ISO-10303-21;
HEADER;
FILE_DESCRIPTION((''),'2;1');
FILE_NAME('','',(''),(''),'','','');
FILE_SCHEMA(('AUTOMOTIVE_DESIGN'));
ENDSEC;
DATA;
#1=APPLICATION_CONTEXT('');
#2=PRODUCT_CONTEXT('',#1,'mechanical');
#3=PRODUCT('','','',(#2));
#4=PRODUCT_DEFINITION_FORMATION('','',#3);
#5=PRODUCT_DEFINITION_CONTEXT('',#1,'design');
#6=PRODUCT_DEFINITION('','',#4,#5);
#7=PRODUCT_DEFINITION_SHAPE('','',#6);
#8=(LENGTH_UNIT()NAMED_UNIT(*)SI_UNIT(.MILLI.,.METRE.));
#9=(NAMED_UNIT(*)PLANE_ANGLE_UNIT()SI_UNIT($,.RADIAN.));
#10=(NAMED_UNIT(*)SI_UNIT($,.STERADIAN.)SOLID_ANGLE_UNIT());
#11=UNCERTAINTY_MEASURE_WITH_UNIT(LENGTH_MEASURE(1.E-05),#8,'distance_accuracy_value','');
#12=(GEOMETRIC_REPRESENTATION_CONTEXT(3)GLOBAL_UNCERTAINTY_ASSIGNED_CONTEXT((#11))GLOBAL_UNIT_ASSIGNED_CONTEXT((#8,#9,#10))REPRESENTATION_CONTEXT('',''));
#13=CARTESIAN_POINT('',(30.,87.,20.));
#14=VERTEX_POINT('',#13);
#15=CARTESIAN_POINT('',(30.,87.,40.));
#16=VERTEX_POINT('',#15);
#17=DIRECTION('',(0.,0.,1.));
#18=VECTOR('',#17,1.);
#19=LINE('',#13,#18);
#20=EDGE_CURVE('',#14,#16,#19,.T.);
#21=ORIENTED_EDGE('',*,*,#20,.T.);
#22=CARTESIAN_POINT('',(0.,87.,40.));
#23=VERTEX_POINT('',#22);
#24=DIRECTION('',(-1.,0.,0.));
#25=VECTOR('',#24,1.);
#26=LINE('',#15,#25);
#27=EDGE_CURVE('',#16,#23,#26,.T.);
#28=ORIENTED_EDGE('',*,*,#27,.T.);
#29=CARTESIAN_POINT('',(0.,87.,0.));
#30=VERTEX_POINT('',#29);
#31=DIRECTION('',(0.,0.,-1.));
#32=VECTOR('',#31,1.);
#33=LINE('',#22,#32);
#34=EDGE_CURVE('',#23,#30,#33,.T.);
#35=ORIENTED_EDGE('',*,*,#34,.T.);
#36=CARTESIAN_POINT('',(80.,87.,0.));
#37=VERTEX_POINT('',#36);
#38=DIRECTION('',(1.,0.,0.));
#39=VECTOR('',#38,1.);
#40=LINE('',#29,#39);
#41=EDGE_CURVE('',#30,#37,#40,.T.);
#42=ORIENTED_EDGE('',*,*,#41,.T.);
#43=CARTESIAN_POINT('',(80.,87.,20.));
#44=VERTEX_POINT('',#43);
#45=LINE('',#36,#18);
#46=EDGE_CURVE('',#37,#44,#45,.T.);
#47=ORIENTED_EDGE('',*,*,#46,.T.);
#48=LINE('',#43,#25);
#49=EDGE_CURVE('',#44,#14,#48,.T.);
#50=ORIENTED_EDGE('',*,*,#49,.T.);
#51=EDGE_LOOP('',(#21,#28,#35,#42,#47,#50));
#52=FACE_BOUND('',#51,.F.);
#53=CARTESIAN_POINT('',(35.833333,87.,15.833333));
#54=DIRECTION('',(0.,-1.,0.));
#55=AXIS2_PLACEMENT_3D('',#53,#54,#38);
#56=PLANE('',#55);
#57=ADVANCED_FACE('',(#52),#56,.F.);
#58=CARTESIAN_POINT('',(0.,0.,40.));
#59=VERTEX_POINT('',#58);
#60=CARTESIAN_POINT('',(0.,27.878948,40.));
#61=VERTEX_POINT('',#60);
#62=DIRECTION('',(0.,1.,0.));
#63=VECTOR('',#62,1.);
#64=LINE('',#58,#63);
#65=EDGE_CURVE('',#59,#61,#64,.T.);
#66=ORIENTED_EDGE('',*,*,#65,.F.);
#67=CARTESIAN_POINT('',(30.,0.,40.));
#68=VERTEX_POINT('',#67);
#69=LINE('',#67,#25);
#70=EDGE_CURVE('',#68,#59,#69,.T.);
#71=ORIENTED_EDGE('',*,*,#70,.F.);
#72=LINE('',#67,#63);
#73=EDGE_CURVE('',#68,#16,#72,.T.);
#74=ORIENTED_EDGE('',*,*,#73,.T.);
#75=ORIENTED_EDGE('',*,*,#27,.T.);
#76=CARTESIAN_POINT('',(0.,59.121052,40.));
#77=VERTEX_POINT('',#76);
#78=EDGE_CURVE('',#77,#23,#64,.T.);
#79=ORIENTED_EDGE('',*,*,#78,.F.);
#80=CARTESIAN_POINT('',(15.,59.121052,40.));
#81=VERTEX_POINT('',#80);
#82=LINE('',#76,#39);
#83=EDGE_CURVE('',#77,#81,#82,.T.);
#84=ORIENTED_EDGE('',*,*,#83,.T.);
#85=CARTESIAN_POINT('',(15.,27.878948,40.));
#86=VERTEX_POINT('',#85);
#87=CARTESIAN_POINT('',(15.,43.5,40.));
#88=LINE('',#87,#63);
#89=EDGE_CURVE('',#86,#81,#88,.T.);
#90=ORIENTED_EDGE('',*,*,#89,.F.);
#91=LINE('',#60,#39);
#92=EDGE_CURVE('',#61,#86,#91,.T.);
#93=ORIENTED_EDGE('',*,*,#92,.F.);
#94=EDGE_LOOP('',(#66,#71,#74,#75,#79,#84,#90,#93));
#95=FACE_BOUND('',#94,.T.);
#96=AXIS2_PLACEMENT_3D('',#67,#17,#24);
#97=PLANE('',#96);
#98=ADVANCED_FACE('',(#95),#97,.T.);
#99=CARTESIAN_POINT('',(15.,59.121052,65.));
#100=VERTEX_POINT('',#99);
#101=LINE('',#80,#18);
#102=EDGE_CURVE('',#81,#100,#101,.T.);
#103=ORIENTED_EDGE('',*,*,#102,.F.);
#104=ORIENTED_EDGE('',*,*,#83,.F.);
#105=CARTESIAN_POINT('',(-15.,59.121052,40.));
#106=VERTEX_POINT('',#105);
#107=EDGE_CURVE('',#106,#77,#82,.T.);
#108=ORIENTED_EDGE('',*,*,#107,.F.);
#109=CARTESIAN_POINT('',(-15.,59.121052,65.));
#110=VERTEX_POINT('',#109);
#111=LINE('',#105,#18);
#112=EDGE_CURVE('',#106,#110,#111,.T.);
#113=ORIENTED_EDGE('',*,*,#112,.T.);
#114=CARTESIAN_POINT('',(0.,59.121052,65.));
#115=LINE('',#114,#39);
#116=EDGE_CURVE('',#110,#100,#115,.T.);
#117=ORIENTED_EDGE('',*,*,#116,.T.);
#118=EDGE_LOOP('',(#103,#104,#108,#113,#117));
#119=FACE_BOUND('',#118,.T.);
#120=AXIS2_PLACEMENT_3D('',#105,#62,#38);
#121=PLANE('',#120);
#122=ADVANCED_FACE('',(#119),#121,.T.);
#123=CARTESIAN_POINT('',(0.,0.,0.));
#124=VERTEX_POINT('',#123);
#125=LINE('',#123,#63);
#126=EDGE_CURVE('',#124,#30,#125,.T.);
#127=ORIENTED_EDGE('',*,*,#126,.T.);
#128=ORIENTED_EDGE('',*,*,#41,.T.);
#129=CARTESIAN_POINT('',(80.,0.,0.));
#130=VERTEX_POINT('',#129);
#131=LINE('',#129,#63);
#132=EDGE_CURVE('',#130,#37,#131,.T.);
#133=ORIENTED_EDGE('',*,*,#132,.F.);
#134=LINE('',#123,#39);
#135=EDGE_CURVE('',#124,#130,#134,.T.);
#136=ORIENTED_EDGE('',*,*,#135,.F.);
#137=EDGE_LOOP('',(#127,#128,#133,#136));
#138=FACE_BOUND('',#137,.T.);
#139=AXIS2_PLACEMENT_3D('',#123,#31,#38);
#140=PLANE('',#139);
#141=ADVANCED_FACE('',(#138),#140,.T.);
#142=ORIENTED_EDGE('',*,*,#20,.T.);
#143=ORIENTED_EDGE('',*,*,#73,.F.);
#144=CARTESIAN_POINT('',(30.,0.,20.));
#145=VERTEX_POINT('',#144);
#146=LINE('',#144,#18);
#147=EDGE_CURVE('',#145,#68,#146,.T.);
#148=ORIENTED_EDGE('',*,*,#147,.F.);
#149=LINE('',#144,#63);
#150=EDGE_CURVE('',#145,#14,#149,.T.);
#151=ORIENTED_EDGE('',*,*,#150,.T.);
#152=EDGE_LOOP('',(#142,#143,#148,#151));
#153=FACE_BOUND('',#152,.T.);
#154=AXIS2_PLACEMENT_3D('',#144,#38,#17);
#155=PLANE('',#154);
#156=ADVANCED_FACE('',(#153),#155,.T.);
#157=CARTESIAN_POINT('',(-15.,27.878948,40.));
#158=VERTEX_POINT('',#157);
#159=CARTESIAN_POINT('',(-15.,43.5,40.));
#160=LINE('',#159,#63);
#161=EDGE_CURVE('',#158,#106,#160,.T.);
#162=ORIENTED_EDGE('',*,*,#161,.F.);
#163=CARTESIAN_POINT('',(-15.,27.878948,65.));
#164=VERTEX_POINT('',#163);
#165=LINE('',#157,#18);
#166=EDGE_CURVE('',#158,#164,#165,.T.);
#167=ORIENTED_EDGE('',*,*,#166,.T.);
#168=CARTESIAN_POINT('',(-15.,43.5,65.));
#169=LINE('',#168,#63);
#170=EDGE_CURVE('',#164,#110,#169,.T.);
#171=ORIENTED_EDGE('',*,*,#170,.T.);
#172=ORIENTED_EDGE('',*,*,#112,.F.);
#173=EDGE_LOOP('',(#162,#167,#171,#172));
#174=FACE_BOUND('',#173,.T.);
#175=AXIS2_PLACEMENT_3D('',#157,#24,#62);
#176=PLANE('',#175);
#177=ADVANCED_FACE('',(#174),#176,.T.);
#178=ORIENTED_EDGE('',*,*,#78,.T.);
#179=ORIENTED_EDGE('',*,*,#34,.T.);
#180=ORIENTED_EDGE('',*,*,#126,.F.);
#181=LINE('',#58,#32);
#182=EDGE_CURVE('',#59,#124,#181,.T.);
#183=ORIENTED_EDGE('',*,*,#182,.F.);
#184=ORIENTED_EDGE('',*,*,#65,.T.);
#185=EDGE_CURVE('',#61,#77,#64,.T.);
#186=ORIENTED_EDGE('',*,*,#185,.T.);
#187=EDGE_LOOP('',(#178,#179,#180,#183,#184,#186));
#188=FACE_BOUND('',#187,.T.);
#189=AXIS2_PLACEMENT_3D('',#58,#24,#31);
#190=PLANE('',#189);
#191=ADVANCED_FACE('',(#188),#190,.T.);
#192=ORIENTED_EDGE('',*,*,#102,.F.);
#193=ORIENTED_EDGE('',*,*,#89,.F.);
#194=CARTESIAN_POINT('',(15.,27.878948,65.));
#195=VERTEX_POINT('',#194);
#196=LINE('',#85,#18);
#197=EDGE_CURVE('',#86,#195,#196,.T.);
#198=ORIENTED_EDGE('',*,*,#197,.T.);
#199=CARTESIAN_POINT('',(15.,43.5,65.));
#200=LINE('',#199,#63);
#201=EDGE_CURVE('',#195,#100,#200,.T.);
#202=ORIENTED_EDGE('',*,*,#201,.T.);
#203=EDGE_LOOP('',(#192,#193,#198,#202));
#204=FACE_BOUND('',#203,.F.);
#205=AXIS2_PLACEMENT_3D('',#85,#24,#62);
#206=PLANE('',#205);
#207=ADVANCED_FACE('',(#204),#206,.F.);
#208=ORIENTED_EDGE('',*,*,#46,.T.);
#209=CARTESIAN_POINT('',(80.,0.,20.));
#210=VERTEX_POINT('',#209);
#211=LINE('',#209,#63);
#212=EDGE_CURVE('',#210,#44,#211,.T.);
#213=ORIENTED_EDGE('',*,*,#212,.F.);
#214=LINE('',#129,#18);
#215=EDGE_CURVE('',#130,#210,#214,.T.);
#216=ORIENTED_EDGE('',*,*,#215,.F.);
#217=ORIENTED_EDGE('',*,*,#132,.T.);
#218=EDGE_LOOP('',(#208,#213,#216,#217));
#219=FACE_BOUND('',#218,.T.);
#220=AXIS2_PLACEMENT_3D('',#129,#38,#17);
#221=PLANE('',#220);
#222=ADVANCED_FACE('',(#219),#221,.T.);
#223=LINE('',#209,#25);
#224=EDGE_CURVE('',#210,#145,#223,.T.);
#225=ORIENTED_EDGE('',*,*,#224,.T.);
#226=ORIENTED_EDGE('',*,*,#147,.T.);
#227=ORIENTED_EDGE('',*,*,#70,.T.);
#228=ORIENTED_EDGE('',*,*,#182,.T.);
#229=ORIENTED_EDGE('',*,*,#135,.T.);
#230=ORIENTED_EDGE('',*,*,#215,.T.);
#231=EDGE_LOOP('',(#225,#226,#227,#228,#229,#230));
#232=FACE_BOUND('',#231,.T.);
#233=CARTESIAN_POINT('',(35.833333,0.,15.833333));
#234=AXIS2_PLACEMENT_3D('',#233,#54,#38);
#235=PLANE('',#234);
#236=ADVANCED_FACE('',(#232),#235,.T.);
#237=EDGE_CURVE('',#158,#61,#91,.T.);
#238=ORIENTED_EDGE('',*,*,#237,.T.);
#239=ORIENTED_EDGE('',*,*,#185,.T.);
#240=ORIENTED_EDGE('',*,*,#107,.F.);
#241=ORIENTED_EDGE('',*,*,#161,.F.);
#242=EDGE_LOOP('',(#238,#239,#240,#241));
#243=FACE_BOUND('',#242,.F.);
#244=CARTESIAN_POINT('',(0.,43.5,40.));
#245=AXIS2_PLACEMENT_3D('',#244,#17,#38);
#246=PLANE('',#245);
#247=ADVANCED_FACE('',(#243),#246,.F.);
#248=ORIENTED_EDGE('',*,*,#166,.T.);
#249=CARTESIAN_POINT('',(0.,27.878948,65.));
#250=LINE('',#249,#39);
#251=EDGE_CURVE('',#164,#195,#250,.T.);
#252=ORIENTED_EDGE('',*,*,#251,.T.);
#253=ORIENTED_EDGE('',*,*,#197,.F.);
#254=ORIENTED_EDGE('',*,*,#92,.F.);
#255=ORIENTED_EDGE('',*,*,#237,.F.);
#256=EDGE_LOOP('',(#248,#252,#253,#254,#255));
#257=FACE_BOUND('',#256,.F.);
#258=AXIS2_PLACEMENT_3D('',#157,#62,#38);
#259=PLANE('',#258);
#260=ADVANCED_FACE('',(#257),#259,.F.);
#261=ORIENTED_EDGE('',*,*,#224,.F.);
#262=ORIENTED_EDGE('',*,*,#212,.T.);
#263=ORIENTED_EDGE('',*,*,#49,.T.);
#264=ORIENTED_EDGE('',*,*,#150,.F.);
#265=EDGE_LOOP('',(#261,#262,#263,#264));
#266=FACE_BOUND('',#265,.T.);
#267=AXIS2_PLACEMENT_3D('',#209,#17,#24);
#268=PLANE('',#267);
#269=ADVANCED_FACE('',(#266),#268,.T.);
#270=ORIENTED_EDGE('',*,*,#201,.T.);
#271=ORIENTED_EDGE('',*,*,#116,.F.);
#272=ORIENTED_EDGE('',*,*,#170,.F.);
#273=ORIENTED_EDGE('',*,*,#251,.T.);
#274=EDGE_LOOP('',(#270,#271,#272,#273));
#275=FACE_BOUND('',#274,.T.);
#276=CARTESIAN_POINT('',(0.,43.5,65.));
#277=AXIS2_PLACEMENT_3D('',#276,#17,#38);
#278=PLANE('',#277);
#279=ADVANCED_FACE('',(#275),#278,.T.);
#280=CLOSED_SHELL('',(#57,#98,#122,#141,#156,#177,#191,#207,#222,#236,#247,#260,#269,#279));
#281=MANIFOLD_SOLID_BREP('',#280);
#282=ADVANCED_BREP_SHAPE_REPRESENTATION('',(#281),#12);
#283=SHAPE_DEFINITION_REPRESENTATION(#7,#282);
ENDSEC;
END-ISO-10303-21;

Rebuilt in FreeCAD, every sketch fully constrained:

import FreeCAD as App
import Part
import Sketcher
from FreeCAD import Vector

doc = App.newDocument("Part")
body = doc.addObject("PartDesign::Body", "Body")

# Sketch on XZ plane
sketch1 = body.newObject("Sketcher::SketchObject", "Sketch")
sketch1.AttachmentSupport = (doc.getObject("XZ_Plane"), [""])
sketch1.MapMode = "FlatFace"
sketch1.addGeometry(Part.LineSegment(Vector(30, 40, 0), Vector(0, 40, 0)), False)
sketch1.addGeometry(Part.LineSegment(Vector(0, 40, 0), Vector(0, 0, 0)), False)
sketch1.addGeometry(Part.LineSegment(Vector(0, 0, 0), Vector(80, 0, 0)), False)
sketch1.addGeometry(Part.LineSegment(Vector(80, 0, 0), Vector(80, 20, 0)), False)
sketch1.addGeometry(Part.LineSegment(Vector(80, 20, 0), Vector(30, 20, 0)), False)
sketch1.addGeometry(Part.LineSegment(Vector(30, 20, 0), Vector(30, 40, 0)), False)
sketch1.addConstraint(Sketcher.Constraint("Coincident", 0, 2, 1, 1))
sketch1.addConstraint(Sketcher.Constraint("Coincident", 1, 2, 2, 1))
sketch1.addConstraint(Sketcher.Constraint("Coincident", 2, 2, 3, 1))
sketch1.addConstraint(Sketcher.Constraint("Coincident", 3, 2, 4, 1))
sketch1.addConstraint(Sketcher.Constraint("Coincident", 4, 2, 5, 1))
sketch1.addConstraint(Sketcher.Constraint("Coincident", 5, 2, 0, 1))
sketch1.addConstraint(Sketcher.Constraint("Horizontal", 0))
sketch1.addConstraint(Sketcher.Constraint("Vertical", 1))
sketch1.addConstraint(Sketcher.Constraint("Horizontal", 2))
sketch1.addConstraint(Sketcher.Constraint("Vertical", 3))
sketch1.addConstraint(Sketcher.Constraint("Horizontal", 4))
sketch1.addConstraint(Sketcher.Constraint("Vertical", 5))
sketch1.addConstraint(Sketcher.Constraint("Coincident", 1, 2, -1, 1))
sketch1.addConstraint(Sketcher.Constraint("Equal", 3, 5))
sketch1.addConstraint(Sketcher.Constraint("DistanceX", 0, 2, 0, 1, 30.0))
sketch1.addConstraint(Sketcher.Constraint("DistanceX", 2, 1, 2, 2, 80.0))
sketch1.addConstraint(Sketcher.Constraint("DistanceY", 1, 2, 1, 1, 40.0))
pad1 = body.newObject("PartDesign::Pad", "Pad")
pad1.Profile = sketch1
pad1.Length = 87
pad1.Reversed = True

# Sketch on XY plane
sketch2 = body.newObject("Sketcher::SketchObject", "Sketch001")
sketch2.AttachmentSupport = (doc.getObject("XY_Plane"), [""])
sketch2.MapMode = "FlatFace"
sketch2.AttachmentOffset = App.Placement(Vector(0, 0, 40), App.Rotation())
sketch2.addGeometry(Part.LineSegment(Vector(-15, 59.121052, 0), Vector(-15, 27.878948, 0)), False)
sketch2.addGeometry(Part.LineSegment(Vector(-15, 27.878948, 0), Vector(15, 27.878948, 0)), False)
sketch2.addGeometry(Part.LineSegment(Vector(15, 27.878948, 0), Vector(15, 59.121052, 0)), False)
sketch2.addGeometry(Part.LineSegment(Vector(15, 59.121052, 0), Vector(-15, 59.121052, 0)), False)
sketch2.addConstraint(Sketcher.Constraint("Coincident", 0, 2, 1, 1))
sketch2.addConstraint(Sketcher.Constraint("Coincident", 1, 2, 2, 1))
sketch2.addConstraint(Sketcher.Constraint("Coincident", 2, 2, 3, 1))
sketch2.addConstraint(Sketcher.Constraint("Coincident", 3, 2, 0, 1))
sketch2.addConstraint(Sketcher.Constraint("Vertical", 0))
sketch2.addConstraint(Sketcher.Constraint("Horizontal", 1))
sketch2.addConstraint(Sketcher.Constraint("Vertical", 2))
sketch2.addConstraint(Sketcher.Constraint("Horizontal", 3))
sketch2.addConstraint(Sketcher.Constraint("DistanceX", 1, 1, 1, 2, 30.0))
sketch2.addConstraint(Sketcher.Constraint("DistanceX", 0, 2, -1, 1, 15.0))
sketch2.addConstraint(Sketcher.Constraint("DistanceY", 0, 2, 0, 1, 31.242104))
sketch2.addConstraint(Sketcher.Constraint("DistanceY", -1, 1, 0, 2, 27.878948))
pad2 = body.newObject("PartDesign::Pad", "Pad001")
pad2.Profile = sketch2
pad2.Length = 25

doc.recompute()
